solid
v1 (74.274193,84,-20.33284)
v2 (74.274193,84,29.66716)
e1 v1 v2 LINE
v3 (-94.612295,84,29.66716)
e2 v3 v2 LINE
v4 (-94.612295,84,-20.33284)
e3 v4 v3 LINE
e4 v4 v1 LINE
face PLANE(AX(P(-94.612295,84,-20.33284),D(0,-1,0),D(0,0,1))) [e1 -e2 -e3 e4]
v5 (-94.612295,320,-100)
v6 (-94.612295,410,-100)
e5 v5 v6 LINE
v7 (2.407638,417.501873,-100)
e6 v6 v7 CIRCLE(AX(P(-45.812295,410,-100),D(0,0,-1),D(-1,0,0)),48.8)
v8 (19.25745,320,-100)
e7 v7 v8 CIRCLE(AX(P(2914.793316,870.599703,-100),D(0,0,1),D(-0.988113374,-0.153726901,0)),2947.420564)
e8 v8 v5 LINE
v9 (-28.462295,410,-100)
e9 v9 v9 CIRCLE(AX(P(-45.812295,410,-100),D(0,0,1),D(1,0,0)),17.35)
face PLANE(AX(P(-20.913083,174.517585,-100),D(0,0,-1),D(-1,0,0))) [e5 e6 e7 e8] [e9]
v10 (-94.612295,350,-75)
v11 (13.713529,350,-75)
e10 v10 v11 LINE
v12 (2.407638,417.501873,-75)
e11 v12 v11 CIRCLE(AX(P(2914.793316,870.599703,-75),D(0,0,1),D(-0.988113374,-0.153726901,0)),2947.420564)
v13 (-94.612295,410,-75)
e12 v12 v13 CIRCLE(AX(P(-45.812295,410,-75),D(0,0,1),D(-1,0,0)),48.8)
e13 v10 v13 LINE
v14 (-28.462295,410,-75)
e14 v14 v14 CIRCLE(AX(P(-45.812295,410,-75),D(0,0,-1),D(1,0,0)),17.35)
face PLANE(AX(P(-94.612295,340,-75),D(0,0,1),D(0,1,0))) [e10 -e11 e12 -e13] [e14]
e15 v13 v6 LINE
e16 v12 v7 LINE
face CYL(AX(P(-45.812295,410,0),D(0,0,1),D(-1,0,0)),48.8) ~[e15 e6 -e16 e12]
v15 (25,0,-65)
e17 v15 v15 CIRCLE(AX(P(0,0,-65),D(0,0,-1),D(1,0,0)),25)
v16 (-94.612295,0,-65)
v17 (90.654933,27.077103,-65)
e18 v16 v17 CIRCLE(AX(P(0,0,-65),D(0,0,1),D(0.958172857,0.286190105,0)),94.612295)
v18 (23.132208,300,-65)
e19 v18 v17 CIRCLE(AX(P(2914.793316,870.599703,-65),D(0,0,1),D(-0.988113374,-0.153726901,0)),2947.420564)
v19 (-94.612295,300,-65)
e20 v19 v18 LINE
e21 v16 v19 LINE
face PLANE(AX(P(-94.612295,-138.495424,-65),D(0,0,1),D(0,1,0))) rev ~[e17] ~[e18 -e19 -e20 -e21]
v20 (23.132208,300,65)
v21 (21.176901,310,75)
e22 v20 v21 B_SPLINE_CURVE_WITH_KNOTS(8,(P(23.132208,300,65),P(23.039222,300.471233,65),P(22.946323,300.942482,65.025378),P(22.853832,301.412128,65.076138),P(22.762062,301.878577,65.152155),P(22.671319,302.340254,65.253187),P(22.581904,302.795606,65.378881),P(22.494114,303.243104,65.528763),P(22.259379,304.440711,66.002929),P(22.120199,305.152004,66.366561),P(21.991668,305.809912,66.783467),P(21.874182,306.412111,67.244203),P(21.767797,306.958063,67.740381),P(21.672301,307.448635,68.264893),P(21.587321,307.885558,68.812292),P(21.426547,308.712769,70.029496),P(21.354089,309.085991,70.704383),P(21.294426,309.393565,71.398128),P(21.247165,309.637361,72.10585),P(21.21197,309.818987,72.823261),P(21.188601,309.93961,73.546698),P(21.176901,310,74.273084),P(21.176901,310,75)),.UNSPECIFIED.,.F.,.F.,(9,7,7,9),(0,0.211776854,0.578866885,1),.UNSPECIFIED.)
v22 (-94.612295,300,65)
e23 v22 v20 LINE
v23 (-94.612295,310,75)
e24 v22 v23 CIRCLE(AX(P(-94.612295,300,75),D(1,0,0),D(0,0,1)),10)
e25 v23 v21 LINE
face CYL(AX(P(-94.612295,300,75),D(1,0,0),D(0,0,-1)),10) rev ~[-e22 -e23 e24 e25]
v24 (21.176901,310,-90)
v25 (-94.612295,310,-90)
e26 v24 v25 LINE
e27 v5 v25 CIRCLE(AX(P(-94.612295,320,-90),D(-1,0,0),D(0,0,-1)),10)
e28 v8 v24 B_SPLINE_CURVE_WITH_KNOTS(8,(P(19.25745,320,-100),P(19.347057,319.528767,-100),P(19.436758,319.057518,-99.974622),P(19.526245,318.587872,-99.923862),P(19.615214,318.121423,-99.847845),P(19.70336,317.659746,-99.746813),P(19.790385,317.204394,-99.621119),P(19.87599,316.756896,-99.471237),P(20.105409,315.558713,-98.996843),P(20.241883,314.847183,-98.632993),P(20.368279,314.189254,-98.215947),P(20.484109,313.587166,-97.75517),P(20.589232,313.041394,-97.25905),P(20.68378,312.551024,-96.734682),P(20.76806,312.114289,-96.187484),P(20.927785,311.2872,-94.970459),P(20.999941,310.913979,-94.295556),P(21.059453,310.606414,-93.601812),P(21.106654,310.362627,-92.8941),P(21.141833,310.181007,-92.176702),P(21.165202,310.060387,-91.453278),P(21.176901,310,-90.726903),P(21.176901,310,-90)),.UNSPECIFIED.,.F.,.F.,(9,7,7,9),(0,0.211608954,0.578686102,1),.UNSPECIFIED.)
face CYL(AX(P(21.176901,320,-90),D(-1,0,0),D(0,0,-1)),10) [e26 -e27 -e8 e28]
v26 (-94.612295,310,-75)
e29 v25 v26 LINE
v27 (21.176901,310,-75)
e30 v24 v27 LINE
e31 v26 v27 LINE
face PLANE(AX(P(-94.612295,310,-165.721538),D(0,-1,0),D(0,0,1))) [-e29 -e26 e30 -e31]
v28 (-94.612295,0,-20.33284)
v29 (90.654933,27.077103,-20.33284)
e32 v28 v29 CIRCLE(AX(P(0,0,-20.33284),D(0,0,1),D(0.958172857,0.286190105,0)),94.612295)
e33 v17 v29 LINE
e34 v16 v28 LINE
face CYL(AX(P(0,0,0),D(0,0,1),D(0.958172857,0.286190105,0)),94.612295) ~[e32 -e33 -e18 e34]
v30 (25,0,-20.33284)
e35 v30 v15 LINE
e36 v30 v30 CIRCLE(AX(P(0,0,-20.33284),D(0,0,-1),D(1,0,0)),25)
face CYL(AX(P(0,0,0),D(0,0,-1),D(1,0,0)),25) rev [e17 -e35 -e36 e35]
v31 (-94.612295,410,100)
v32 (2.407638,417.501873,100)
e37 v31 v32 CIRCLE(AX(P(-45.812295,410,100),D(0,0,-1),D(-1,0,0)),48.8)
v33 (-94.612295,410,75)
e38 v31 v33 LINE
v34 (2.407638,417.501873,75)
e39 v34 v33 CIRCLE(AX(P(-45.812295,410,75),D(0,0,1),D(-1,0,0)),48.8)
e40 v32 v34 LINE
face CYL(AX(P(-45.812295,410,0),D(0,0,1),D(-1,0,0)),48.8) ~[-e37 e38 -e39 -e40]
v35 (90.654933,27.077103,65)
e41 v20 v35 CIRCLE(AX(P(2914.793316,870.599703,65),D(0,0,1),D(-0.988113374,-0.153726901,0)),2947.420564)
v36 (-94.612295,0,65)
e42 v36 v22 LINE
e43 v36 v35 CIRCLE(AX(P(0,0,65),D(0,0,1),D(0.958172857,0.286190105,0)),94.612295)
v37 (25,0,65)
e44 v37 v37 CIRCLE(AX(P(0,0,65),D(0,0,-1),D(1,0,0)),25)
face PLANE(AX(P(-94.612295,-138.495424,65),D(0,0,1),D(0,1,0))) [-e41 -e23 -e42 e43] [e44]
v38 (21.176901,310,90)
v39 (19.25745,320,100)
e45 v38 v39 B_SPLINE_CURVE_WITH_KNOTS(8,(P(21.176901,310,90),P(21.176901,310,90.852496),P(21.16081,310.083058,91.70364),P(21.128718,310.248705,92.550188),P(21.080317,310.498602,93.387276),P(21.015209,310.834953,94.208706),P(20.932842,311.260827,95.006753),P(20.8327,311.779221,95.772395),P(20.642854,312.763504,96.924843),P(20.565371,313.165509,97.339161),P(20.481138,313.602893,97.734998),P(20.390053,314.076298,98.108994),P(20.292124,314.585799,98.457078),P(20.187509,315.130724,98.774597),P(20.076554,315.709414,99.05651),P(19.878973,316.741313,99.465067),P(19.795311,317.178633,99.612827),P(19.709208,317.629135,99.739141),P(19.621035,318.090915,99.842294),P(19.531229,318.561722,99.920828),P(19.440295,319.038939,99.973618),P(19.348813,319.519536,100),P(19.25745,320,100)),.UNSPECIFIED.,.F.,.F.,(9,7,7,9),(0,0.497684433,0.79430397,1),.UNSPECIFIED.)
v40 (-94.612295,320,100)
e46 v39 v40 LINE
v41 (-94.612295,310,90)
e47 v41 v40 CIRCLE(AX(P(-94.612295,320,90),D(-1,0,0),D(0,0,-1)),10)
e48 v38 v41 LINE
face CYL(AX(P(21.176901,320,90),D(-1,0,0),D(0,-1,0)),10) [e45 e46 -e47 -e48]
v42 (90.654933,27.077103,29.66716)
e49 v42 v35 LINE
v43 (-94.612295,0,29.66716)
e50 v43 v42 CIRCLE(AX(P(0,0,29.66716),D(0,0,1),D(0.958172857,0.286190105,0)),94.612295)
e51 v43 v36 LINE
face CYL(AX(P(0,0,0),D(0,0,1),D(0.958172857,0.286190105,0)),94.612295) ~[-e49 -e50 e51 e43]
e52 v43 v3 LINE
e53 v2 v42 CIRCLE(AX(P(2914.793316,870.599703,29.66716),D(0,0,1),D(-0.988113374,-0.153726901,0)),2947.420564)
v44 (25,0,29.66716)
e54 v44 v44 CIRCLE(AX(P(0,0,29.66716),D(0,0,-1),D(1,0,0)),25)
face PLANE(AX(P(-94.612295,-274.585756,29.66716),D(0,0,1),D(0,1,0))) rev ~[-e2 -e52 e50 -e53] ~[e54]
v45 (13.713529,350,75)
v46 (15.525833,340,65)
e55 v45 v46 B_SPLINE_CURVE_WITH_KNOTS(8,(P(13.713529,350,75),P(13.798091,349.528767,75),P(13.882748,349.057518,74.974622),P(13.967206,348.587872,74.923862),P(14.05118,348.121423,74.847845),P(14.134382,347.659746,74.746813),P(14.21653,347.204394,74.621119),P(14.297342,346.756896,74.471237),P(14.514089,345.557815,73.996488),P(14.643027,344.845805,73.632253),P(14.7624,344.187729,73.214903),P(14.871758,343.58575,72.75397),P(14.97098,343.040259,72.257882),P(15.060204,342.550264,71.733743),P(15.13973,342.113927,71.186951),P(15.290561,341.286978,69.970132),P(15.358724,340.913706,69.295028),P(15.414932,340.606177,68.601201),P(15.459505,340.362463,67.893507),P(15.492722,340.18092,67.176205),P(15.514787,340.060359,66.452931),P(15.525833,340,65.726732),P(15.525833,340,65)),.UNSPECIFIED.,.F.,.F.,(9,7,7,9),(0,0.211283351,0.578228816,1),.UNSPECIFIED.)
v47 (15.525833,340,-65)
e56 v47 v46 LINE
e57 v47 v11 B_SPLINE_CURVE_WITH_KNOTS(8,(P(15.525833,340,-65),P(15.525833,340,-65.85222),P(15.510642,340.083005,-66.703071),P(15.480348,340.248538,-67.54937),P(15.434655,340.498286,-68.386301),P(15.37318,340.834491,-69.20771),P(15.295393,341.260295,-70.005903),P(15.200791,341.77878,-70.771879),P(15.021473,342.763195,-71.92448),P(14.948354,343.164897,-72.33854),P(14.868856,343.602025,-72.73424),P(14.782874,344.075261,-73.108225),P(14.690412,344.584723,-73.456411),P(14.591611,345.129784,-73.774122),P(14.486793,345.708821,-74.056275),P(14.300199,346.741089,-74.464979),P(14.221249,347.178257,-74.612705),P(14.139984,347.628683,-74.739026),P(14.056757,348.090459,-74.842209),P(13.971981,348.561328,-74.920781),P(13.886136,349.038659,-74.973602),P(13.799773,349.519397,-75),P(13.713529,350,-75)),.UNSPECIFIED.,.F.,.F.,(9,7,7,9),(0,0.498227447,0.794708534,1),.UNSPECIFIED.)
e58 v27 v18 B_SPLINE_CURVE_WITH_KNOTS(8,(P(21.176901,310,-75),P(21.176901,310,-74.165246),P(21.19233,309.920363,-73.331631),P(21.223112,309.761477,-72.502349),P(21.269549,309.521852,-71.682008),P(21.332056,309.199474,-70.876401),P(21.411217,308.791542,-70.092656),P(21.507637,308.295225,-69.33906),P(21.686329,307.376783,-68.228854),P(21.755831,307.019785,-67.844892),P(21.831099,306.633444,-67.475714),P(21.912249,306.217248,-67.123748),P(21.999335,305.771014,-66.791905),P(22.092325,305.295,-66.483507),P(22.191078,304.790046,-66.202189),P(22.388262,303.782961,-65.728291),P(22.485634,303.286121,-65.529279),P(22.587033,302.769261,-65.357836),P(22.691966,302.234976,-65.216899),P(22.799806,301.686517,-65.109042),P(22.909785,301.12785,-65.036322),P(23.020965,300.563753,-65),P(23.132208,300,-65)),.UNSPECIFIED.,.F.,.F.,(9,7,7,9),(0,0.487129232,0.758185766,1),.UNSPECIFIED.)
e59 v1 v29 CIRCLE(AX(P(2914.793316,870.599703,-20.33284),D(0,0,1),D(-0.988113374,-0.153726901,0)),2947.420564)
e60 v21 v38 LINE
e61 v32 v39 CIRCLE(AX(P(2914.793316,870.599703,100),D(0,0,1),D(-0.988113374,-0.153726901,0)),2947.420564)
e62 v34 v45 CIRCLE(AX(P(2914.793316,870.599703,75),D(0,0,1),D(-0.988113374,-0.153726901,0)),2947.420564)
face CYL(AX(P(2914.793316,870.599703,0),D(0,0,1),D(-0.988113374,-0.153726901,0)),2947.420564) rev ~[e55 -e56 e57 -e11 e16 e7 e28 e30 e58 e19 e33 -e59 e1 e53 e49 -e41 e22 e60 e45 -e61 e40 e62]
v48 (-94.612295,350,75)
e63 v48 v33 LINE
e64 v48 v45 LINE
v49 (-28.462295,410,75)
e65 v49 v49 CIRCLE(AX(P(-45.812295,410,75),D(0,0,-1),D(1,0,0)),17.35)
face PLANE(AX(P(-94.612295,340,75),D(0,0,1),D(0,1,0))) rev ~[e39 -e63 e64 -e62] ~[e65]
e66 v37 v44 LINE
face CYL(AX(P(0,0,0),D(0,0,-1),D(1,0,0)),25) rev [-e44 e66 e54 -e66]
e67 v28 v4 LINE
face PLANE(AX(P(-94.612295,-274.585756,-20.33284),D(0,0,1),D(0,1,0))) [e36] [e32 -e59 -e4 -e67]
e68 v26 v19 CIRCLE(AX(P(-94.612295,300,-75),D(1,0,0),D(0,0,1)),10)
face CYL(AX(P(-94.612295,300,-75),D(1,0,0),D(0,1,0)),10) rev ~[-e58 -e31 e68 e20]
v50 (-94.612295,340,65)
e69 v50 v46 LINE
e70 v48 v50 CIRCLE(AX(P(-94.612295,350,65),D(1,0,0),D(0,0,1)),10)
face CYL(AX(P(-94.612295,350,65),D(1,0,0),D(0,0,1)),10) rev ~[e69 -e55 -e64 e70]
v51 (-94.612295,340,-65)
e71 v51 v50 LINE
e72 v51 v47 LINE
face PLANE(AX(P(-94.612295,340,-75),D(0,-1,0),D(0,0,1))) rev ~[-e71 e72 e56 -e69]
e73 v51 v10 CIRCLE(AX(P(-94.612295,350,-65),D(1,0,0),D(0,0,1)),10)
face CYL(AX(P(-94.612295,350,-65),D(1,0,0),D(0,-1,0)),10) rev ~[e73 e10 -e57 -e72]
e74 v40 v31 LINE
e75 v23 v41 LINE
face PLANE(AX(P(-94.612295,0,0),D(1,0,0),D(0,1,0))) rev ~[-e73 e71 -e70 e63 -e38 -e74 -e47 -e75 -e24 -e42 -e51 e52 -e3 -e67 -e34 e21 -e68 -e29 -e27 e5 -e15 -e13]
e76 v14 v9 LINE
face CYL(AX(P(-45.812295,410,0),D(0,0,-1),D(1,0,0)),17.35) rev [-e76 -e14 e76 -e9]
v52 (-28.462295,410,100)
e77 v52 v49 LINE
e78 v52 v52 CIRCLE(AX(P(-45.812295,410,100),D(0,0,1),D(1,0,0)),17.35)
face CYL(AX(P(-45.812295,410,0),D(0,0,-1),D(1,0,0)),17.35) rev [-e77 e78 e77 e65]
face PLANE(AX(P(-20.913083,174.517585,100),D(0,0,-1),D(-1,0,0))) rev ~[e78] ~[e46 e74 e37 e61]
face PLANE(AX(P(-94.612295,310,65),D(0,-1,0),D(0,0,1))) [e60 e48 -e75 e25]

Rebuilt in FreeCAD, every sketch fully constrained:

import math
import FreeCAD as App
import Part
import Sketcher

V = App.Vector


def edges_at(feature, points):
    """Names of the edges that pass closest to the given points."""
    edges = feature.Shape.Edges
    near = lambda p: min(range(len(edges)), key=lambda i: edges[i].distToShape(Part.Vertex(*p))[0])
    return sorted({f"Edge{near(p) + 1}" for p in points})

doc = App.newDocument("Part")
body = doc.addObject("PartDesign::Body", "Body")

# Sketch on XY plane
sketch1 = body.newObject("Sketcher::SketchObject", "Sketch")
sketch1.AttachmentSupport = (doc.getObject("XY_Plane"), [""])
sketch1.MapMode = "FlatFace"
sketch1.addGeometry([
    Part.LineSegment(V(-95, 410, 0), V(-95, 0, 0)),  # 0
    Part.ArcOfCircle(Part.Circle(V(0, 0, 0), V(0, 0, 1), 95), math.radians(180), math.radians(377)),  # 1
    Part.ArcOfCircle(Part.Circle(V(2915, 871, 0), V(0, 0, 1), 2947), math.radians(-171.16), math.radians(-163.37)),  # 2
    Part.ArcOfCircle(Part.Circle(V(-46, 410, 0), V(0, 0, 1), 49), math.radians(9), math.radians(180)),  # 3
    Part.Circle(V(0, 0, 0), V(0, 0, 1), 25),  # 4
    Part.Circle(V(-46, 410, 0), V(0, 0, 1), 17),  # 5
], False)
sketch1.addConstraint([
    Sketcher.Constraint("Tangent", 0, 2, 1, 1),
    Sketcher.Constraint("Tangent", 1, 2, 2, 2),
    Sketcher.Constraint("Tangent", 2, 1, 3, 1),
    Sketcher.Constraint("Tangent", 3, 2, 0, 1),
    Sketcher.Constraint("Vertical", 0),
    Sketcher.Constraint("Coincident", 1, 3, -1, 1),
    Sketcher.Constraint("Coincident", 4, 3, -1, 1),
    Sketcher.Constraint("Coincident", 5, 3, 3, 3),
    Sketcher.Constraint("Diameter", 4, 50.0),
    Sketcher.Constraint("Diameter", 5, 34.7),
    Sketcher.Constraint("Radius", 3, 48.8),
    Sketcher.Constraint("DistanceY", 0, 2, 0, 1, 410.0),
    Sketcher.Constraint("Radius", 1, 94.612295),
    Sketcher.Constraint("Radius", 2, 2947.420564),
])
pad1 = body.newObject("PartDesign::Pad", "Pad")
pad1.Profile = sketch1
pad1.Length = 200
pad1.Midplane = True

# Sketch on YZ plane
sketch2 = body.newObject("Sketcher::SketchObject", "Sketch001")
sketch2.AttachmentSupport = (doc.getObject("YZ_Plane"), [""])
sketch2.MapMode = "FlatFace"
sketch2.AttachmentOffset = App.Placement(V(0, 0, -94.612295), App.Rotation())
sketch2.addGeometry([
    Part.LineSegment(V(503, -75, 0), V(340, -75, 0)),  # 0
    Part.LineSegment(V(340, -75, 0), V(340, 75, 0)),  # 1
    Part.LineSegment(V(340, 75, 0), V(503, 75, 0)),  # 2
    Part.LineSegment(V(503, 75, 0), V(503, -75, 0)),  # 3
    Part.LineSegment(V(310, -166, 0), V(-138, -166, 0)),  # 4
    Part.LineSegment(V(-138, -166, 0), V(-138, -65, 0)),  # 5
    Part.LineSegment(V(-138, -65, 0), V(310, -65, 0)),  # 6
    Part.LineSegment(V(310, -65, 0), V(310, -166, 0)),  # 7
    Part.LineSegment(V(310, 65, 0), V(-138, 65, 0)),  # 8
    Part.LineSegment(V(-138, 65, 0), V(-138, 166, 0)),  # 9
    Part.LineSegment(V(-138, 166, 0), V(310, 166, 0)),  # 10
    Part.LineSegment(V(310, 166, 0), V(310, 65, 0)),  # 11
], False)
sketch2.addConstraint([
    Sketcher.Constraint("Coincident", 0, 2, 1, 1),
    Sketcher.Constraint("Coincident", 1, 2, 2, 1),
    Sketcher.Constraint("Coincident", 2, 2, 3, 1),
    Sketcher.Constraint("Coincident", 3, 2, 0, 1),
    Sketcher.Constraint("Coincident", 4, 2, 5, 1),
    Sketcher.Constraint("Coincident", 5, 2, 6, 1),
    Sketcher.Constraint("Coincident", 6, 2, 7, 1),
    Sketcher.Constraint("Coincident", 7, 2, 4, 1),
    Sketcher.Constraint("Coincident", 8, 2, 9, 1),
    Sketcher.Constraint("Coincident", 9, 2, 10, 1),
    Sketcher.Constraint("Coincident", 10, 2, 11, 1),
    Sketcher.Constraint("Coincident", 11, 2, 8, 1),
    Sketcher.Constraint("Horizontal", 0),
    Sketcher.Constraint("Vertical", 1),
    Sketcher.Constraint("Horizontal", 2),
    Sketcher.Constraint("Vertical", 3),
    Sketcher.Constraint("Horizontal", 4),
    Sketcher.Constraint("Vertical", 5),
    Sketcher.Constraint("Horizontal", 6),
    Sketcher.Constraint("Vertical", 7),
    Sketcher.Constraint("Horizontal", 8),
    Sketcher.Constraint("Vertical", 9),
    Sketcher.Constraint("Horizontal", 10),
    Sketcher.Constraint("Vertical", 11),
    Sketcher.Constraint("Symmetric", 5, 2, 8, 2, -1),
    Sketcher.Constraint("Symmetric", 7, 2, 10, 2, -1),
    Sketcher.Constraint("DistanceY", 1, 1, 1, 2, 150.0),
    Sketcher.Constraint("DistanceX", -1, 1, 0, 2, 340.0),
    Sketcher.Constraint("DistanceY", 0, 2, -1, 1, 75.0),
    Sketcher.Constraint("DistanceY", 5, 2, -1, 1, 65.0),
    Sketcher.Constraint("DistanceX", -1, 1, 6, 2, 310.0),
    Sketcher.Constraint("DistanceX", 0, 2, 0, 1, 163.350102),
    Sketcher.Constraint("DistanceX", 4, 2, 4, 1, 448.495424),
    Sketcher.Constraint("DistanceY", 5, 1, 5, 2, 100.721538),
])
pocket1 = body.newObject("PartDesign::Pocket", "Pocket")
pocket1.Profile = sketch2
pocket1.Length = 310
pocket1.Reversed = True

# Sketch on YZ plane
sketch3 = body.newObject("Sketcher::SketchObject", "Sketch002")
sketch3.AttachmentSupport = (doc.getObject("YZ_Plane"), [""])
sketch3.MapMode = "FlatFace"
sketch3.AttachmentOffset = App.Placement(V(0, 0, -94.612295), App.Rotation())
sketch3.addGeometry([
    Part.LineSegment(V(84, -20, 0), V(-275, -20, 0)),
    Part.LineSegment(V(-275, -20, 0), V(-275, 30, 0)),
    Part.LineSegment(V(-275, 30, 0), V(84, 30, 0)),
    Part.LineSegment(V(84, 30, 0), V(84, -20, 0)),
], False)
sketch3.addConstraint([
    Sketcher.Constraint("Coincident", 0, 2, 1, 1),
    Sketcher.Constraint("Coincident", 1, 2, 2, 1),
    Sketcher.Constraint("Coincident", 2, 2, 3, 1),
    Sketcher.Constraint("Coincident", 3, 2, 0, 1),
    Sketcher.Constraint("Horizontal", 0),
    Sketcher.Constraint("Vertical", 1),
    Sketcher.Constraint("Horizontal", 2),
    Sketcher.Constraint("Vertical", 3),
    Sketcher.Constraint("DistanceY", 1, 1, 1, 2, 50.0),
    Sketcher.Constraint("DistanceX", -1, 1, 2, 2, 84.0),
    Sketcher.Constraint("DistanceX", 0, 2, 0, 1, 358.585756),
    Sketcher.Constraint("DistanceY", 0, 2, -1, 1, 20.33284),
])
pocket2 = body.newObject("PartDesign::Pocket", "Pocket001")
pocket2.Profile = sketch3
pocket2.Length = 310
pocket2.Reversed = True
doc.recompute()

fillet = body.newObject("PartDesign::Fillet", "Fillet")
fillet.Base = (pocket2, edges_at(pocket2, [
    (-39.543, 340, 75),
    (-39.543, 340, -75),
    (-36.718, 310, -100),
    (-36.718, 310, -65),
    (-36.718, 310, 100),
    (-36.718, 310, 65),
]))
fillet.Radius = 10

doc.recompute()
